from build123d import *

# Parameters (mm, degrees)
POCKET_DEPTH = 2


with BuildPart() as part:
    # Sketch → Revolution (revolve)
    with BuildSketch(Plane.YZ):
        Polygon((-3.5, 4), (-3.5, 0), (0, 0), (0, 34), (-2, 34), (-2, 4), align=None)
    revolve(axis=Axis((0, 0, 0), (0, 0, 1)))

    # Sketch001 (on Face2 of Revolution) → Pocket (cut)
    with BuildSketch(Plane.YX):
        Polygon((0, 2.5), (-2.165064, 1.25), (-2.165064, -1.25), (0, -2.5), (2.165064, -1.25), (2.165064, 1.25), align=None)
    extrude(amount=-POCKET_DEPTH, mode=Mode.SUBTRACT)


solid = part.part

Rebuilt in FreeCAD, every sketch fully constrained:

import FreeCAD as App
import Part
import Sketcher

V = App.Vector
Q = App.Units.Quantity


def add_polygon(sketch, points):
    """Adds a closed chain of lines whose ends are joined by coincident constraints."""
    first, n = sketch.GeometryCount, len(points)
    for a, b in zip(points, points[1:] + points[:1]):
        sketch.addGeometry(Part.LineSegment(App.Vector(*a, 0), App.Vector(*b, 0)), False)
    for i in range(n):
        sketch.addConstraint(Sketcher.Constraint("Coincident", first + i, 2, first + (i + 1) % n, 1))

doc = App.newDocument("Part")
body = doc.addObject("PartDesign::Body", "Body")

# Sketch on YZ plane
sketch1 = doc.addObject("Sketcher::SketchObject", "Sketch")
body.addObject(sketch1)
sketch1.AttachmentSupport = (doc.YZ_Plane, [""])
sketch1.MapMode = "FlatFace"
add_polygon(sketch1, [(-3.5, 4), (-3.5, 0), (0, 0), (0, 34), (-2, 34), (-2, 4)])  # lines 0-5
sketch1.addConstraint([
    Sketcher.Constraint("Vertical", 0),
    Sketcher.Constraint("Horizontal", 1),
    Sketcher.Constraint("Vertical", 2),
    Sketcher.Constraint("Horizontal", 3),
    Sketcher.Constraint("Vertical", 4),
    Sketcher.Constraint("Horizontal", 5),
    Sketcher.Constraint("Coincident", 1, 2, -1, 1),
    Sketcher.Constraint("DistanceX", 3, 2, 3, 1, Q("2 mm")),
    Sketcher.Constraint("DistanceY", 0, 2, 0, 1, Q("4 mm")),
    Sketcher.Constraint("DistanceY", 2, 1, 2, 2, Q("34 mm")),
    Sketcher.Constraint("DistanceX", 1, 1, 1, 2, Q("3.5 mm")),
])
revolution = doc.addObject("PartDesign::Revolution", "Revolution")
body.addObject(revolution)
revolution.Profile = sketch1
revolution.ReferenceAxis = (sketch1, ["V_Axis"])
revolution.Angle = 360

# Sketch on XY plane
sketch2 = doc.addObject("Sketcher::SketchObject", "Sketch001")
body.addObject(sketch2)
sketch2.AttachmentSupport = (doc.XY_Plane, [""])
sketch2.MapMode = "FlatFace"
add_polygon(sketch2, [(2.5, 0), (1.2, -2.2), (-1.2, -2.2), (-2.5, 0), (-1.2, 2.2), (1.2, 2.2)])  # lines 0-5
sketch2.addConstraint([
    Sketcher.Constraint("Horizontal", 1),
    Sketcher.Constraint("Horizontal", 4),
    Sketcher.Constraint("Symmetric", 0, 2, 3, 2, -1, 1),
    Sketcher.Constraint("Symmetric", 2, 2, 5, 2, -1, 1),
    Sketcher.Constraint("PointOnObject", 2, 2, -1),
    Sketcher.Constraint("Parallel", 2, 5),
    Sketcher.Constraint("Vertical", 1, 2, 3, 2),
    Sketcher.Constraint("Angle", 0, Q("-119.999994 deg")),
    Sketcher.Constraint("DistanceX", 1, 2, 1, 1, Q("2.5 mm")),
    Sketcher.Constraint("DistanceX", 2, 2, 5, 2, Q("5 mm")),
])
pocket1 = doc.addObject("PartDesign::Pocket", "Pocket")
body.addObject(pocket1)
pocket1.Profile = sketch2
pocket1.Length = 2
pocket1.Reversed = True

doc.recompute()
